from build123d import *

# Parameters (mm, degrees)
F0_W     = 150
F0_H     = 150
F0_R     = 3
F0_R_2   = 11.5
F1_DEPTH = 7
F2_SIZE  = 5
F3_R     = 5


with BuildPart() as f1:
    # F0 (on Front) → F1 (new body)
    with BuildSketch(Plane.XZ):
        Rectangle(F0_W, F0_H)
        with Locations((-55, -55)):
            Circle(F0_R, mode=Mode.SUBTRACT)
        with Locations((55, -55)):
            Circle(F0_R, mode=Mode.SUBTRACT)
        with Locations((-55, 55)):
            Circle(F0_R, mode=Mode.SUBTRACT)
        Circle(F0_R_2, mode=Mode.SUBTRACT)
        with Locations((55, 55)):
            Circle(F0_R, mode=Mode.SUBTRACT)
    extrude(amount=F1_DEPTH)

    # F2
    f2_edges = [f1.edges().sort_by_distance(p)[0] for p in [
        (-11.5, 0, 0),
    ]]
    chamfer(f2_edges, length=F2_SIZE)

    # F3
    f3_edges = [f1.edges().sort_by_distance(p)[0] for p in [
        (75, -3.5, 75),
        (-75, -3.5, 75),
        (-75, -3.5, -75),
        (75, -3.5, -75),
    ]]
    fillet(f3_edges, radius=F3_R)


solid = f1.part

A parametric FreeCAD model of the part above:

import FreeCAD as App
import Part
import Sketcher
Q = App.Units.Quantity


def edges_at(feature, points):
    """Names of the edges that pass closest to the given points."""
    edges = feature.Shape.Edges
    near = lambda p: min(range(len(edges)), key=lambda i: edges[i].distToShape(Part.Vertex(*p))[0])
    return sorted({f"Edge{near(p) + 1}" for p in points})


def add_polygon(sketch, points):
    """Adds a closed chain of lines whose ends are joined by coincident constraints."""
    first, n = sketch.GeometryCount, len(points)
    for a, b in zip(points, points[1:] + points[:1]):
        sketch.addGeometry(Part.LineSegment(App.Vector(*a, 0), App.Vector(*b, 0)), False)
    for i in range(n):
        sketch.addConstraint(Sketcher.Constraint("Coincident", first + i, 2, first + (i + 1) % n, 1))

doc = App.newDocument("Part")
params = doc.addObject("Spreadsheet::Sheet", "Params")
for row, (alias, value) in enumerate([
    ("sketch1_diameter", "6 mm"),
    ("sketch1_diameter2", "23 mm"),
    ("sketch1_width", "150 mm"),
    ("pad1_length", "7 mm"),
    ("chamfer_size", "5 mm"),
    ("fillet_radius", "5 mm"),
], start=1):
    params.set(f"A{row}", alias)
    params.set(f"B{row}", "=" + value)
    params.setAlias(f"B{row}", alias)

body = doc.addObject("PartDesign::Body", "Body")

sketch1 = body.newObject("Sketcher::SketchObject", "Sketch")
sketch1.AttachmentSupport = (doc.getObject("XZ_Plane"), [""])
sketch1.MapMode = "FlatFace"
add_polygon(sketch1, [(-75, 75), (-75, -75), (75, -75), (75, 75)])
sketch1.addGeometry(Part.Circle(App.Vector(-55, -55, 0), App.Vector(0, 0, 1), 3), False)
sketch1.addGeometry(Part.Circle(App.Vector(55, -55, 0), App.Vector(0, 0, 1), 3), False)
sketch1.addGeometry(Part.Circle(App.Vector(-55, 55, 0), App.Vector(0, 0, 1), 3), False)
sketch1.addGeometry(Part.Circle(App.Vector(0, 0, 0), App.Vector(0, 0, 1), 11.5), False)
sketch1.addGeometry(Part.Circle(App.Vector(55, 55, 0), App.Vector(0, 0, 1), 3), False)
sketch1.addConstraint(Sketcher.Constraint("Vertical", 0))
sketch1.addConstraint(Sketcher.Constraint("Horizontal", 1))
sketch1.addConstraint(Sketcher.Constraint("Vertical", 2))
sketch1.addConstraint(Sketcher.Constraint("Horizontal", 3))
sketch1.addConstraint(Sketcher.Constraint("Coincident", 7, 3, -1, 1))
sketch1.addConstraint(Sketcher.Constraint("Equal", 4, 5))
sketch1.addConstraint(Sketcher.Constraint("Equal", 5, 6))
sketch1.addConstraint(Sketcher.Constraint("Equal", 6, 8))
sketch1.addConstraint(Sketcher.Constraint("Symmetric", 5, 3, 6, 3, -1, 1))
sketch1.addConstraint(Sketcher.Constraint("Symmetric", 4, 3, 8, 3, -1, 1))
sketch1.addConstraint(Sketcher.Constraint("Symmetric", 0, 2, 2, 2, -1, 1))
sketch1.addConstraint(Sketcher.Constraint("Symmetric", 4, 3, 5, 3, -2))
sketch1.addConstraint(Sketcher.Constraint("Equal", 3, 0))
sketch1.addConstraint(Sketcher.Constraint("Diameter", 4, Q("6 mm")))
sketch1.addConstraint(Sketcher.Constraint("Diameter", 7, Q("23 mm")))
sketch1.addConstraint(Sketcher.Constraint("DistanceX", 1, 1, 1, 2, Q("150 mm")))
sketch1.addConstraint(Sketcher.Constraint("DistanceX", 4, 3, -1, 1, Q("55 mm")))
sketch1.addConstraint(Sketcher.Constraint("DistanceY", 4, 3, -1, 1, Q("55 mm")))
sketch1.setExpression("Constraints[17]", "Params.sketch1_diameter")
sketch1.setExpression("Constraints[18]", "Params.sketch1_diameter2")
sketch1.setExpression("Constraints[19]", "Params.sketch1_width")
pad1 = body.newObject("PartDesign::Pad", "Pad")
pad1.Profile = sketch1
pad1.setExpression("Length", "Params.pad1_length")
doc.recompute()

chamfer = body.newObject("PartDesign::Chamfer", "Chamfer")
chamfer.Base = (pad1, edges_at(pad1, [(-11.5, 0, 0)]))
chamfer.setExpression("Size", "Params.chamfer_size")
doc.recompute()

fillet = body.newObject("PartDesign::Fillet", "Fillet")
fillet.Base = (chamfer, edges_at(chamfer, [
    (75, -3.5, 75),
    (-75, -3.5, 75),
    (-75, -3.5, -75),
    (75, -3.5, -75),
]))
fillet.setExpression("Radius", "Params.fillet_radius")

doc.recompute()
